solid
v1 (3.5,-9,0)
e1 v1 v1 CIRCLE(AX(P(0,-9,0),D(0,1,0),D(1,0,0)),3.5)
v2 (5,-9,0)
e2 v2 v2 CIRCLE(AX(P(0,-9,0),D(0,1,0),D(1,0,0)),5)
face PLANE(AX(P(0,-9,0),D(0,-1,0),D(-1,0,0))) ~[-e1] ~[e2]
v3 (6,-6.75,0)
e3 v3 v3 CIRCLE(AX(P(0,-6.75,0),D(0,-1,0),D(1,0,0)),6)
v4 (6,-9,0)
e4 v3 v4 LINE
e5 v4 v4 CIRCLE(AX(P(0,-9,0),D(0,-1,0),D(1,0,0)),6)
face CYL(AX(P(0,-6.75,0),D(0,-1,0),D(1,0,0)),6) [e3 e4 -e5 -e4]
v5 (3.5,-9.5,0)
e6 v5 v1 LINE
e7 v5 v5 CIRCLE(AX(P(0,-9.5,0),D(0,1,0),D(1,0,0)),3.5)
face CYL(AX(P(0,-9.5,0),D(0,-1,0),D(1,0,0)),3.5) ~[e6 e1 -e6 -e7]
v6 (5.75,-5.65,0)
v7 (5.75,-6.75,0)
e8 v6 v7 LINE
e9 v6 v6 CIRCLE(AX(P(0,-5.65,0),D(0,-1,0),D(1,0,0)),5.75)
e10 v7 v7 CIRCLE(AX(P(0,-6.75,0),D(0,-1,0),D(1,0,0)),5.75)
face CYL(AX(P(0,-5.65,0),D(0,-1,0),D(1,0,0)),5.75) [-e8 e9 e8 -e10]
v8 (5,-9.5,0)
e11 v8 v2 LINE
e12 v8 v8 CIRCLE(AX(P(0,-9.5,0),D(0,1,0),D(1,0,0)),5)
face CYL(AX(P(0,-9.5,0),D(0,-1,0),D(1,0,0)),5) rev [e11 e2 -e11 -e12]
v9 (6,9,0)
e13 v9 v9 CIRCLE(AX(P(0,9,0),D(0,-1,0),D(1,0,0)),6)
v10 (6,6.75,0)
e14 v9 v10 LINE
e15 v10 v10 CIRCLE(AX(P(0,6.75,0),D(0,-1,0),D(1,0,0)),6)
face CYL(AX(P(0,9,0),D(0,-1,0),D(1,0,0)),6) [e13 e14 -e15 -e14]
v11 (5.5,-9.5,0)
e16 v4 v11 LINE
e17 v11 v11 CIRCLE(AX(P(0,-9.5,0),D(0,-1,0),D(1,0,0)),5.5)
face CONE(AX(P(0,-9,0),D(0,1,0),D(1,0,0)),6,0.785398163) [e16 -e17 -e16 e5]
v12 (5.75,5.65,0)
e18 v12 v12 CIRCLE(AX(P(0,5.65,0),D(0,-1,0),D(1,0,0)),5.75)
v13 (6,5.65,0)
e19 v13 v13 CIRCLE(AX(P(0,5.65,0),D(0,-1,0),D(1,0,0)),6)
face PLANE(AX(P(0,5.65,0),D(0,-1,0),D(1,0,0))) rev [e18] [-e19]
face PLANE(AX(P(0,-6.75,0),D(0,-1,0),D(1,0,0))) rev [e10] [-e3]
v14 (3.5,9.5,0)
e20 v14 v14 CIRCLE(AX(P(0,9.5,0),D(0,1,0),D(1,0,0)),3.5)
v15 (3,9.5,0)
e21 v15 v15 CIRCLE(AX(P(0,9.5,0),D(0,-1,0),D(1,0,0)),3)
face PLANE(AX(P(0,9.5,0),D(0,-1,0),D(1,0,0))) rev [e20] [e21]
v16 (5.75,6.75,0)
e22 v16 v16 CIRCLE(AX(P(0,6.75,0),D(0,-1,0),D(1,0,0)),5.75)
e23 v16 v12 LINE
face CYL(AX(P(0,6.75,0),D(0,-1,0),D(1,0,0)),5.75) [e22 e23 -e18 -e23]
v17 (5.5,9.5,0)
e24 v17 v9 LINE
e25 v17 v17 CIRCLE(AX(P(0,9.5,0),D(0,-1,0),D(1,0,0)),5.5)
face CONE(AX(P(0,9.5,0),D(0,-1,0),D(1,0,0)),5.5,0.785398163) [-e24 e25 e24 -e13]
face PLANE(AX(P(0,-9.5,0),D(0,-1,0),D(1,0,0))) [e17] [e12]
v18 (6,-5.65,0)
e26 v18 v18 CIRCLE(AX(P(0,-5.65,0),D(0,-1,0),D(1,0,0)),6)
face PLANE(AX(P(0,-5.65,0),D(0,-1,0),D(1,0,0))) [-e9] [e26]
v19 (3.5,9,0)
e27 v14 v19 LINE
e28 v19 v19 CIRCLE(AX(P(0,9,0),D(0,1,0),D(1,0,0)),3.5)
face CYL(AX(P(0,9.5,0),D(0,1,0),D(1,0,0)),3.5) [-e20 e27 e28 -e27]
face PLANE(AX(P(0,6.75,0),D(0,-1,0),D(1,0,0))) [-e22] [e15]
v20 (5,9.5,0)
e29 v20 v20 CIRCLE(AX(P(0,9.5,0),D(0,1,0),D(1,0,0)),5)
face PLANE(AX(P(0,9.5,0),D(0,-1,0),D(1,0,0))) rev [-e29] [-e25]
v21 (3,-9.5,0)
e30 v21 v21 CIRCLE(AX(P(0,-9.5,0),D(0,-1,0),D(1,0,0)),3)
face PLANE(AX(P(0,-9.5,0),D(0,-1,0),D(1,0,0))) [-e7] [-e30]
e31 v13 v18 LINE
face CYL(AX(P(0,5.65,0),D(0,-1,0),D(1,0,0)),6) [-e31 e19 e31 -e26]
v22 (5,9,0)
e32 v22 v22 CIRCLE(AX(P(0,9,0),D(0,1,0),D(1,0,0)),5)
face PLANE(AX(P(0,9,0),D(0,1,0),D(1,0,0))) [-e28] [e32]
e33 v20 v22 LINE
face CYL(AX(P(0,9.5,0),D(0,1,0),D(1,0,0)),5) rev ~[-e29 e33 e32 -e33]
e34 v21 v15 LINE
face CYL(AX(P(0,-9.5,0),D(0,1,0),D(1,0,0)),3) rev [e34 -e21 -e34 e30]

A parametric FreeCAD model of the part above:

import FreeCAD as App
import Part
import Sketcher

V = App.Vector
Q = App.Units.Quantity


def add_polygon(sketch, points):
    """Adds a closed chain of lines whose ends are joined by coincident constraints."""
    first, n = sketch.GeometryCount, len(points)
    for a, b in zip(points, points[1:] + points[:1]):
        sketch.addGeometry(Part.LineSegment(App.Vector(*a, 0), App.Vector(*b, 0)), False)
    for i in range(n):
        sketch.addConstraint(Sketcher.Constraint("Coincident", first + i, 2, first + (i + 1) % n, 1))

doc = App.newDocument("Part")
params = doc.addObject("Spreadsheet::Sheet", "Params")
for row, (alias, value) in enumerate([
    ("sketch1_height", "19 mm"),
    ("sketch1_width", "2.5 mm"),
    ("sketch1_height2", "1.1 mm"),
    ("sketch1_height3", "11.3 mm"),
    ("sketch1_width2", "0.25 mm"),
    ("revolution_angle", "360 deg"),
    ("sketch2_diameter", "10 mm"),
    ("sketch2_diameter2", "7 mm"),
    ("pocket1_length", "0.5 mm"),
], start=1):
    params.set(f"A{row}", alias)
    params.set(f"B{row}", "=" + value)
    params.setAlias(f"B{row}", alias)

body = doc.addObject("PartDesign::Body", "Body")

# Sketch on XY plane
sketch1 = body.newObject("Sketcher::SketchObject", "Sketch")
sketch1.AttachmentSupport = (doc.getObject("XY_Plane"), [""])
sketch1.MapMode = "FlatFace"
add_polygon(sketch1, [(3, 9.5), (3, -9.5), (5.5, -9.5), (6, -9), (6, -6.75), (5.75, -6.75), (5.75, -5.65), (6, -5.65), (6, 5.65), (5.75, 5.65), (5.75, 6.75), (6, 6.75), (6, 9), (5.5, 9.5)])  # lines 0-13
sketch1.addConstraint([
    Sketcher.Constraint("Vertical", 0),
    Sketcher.Constraint("Horizontal", 1),
    Sketcher.Constraint("Vertical", 3),
    Sketcher.Constraint("Horizontal", 4),
    Sketcher.Constraint("Vertical", 5),
    Sketcher.Constraint("Horizontal", 6),
    Sketcher.Constraint("Vertical", 7),
    Sketcher.Constraint("Horizontal", 8),
    Sketcher.Constraint("Vertical", 9),
    Sketcher.Constraint("Horizontal", 10),
    Sketcher.Constraint("Vertical", 11),
    Sketcher.Constraint("Horizontal", 13),
    Sketcher.Constraint("Symmetric", 5, 2, 8, 2, -1),
    Sketcher.Constraint("Symmetric", 3, 2, 10, 2, -1),
    Sketcher.Constraint("Symmetric", 1, 2, 12, 2, -1),
    Sketcher.Constraint("Perpendicular", 2, 12),
    Sketcher.Constraint("Vertical", 3, 2, 6, 2),
    Sketcher.Constraint("Equal", 3, 11),
    Sketcher.Constraint("DistanceY", 0, 2, 0, 1, Q("19 mm")),
    Sketcher.Constraint("DistanceX", 1, 1, 1, 2, Q("2.5 mm")),
    Sketcher.Constraint("DistanceY", 5, 1, 5, 2, Q("1.1 mm")),
    Sketcher.Constraint("DistanceY", 7, 1, 7, 2, Q("11.3 mm")),
    Sketcher.Constraint("DistanceX", -1, 1, 0, 2, Q("3 mm")),
    Sketcher.Constraint("DistanceX", -1, 1, 2, 2, Q("6 mm")),
    Sketcher.Constraint("DistanceX", 4, 2, 4, 1, Q("0.25 mm")),
])
sketch1.setExpression("Constraints[32]", "Params.sketch1_height")
sketch1.setExpression("Constraints[33]", "Params.sketch1_width")
sketch1.setExpression("Constraints[34]", "Params.sketch1_height2")
sketch1.setExpression("Constraints[35]", "Params.sketch1_height3")
sketch1.setExpression("Constraints[38]", "Params.sketch1_width2")
revolution = body.newObject("PartDesign::Revolution", "Revolution")
revolution.Profile = sketch1
revolution.ReferenceAxis = (sketch1, ["V_Axis"])
revolution.setExpression("Angle", "Params.revolution_angle")

# Sketch on XZ plane
sketch2 = body.newObject("Sketcher::SketchObject", "Sketch001")
sketch2.AttachmentSupport = (doc.getObject("XZ_Plane"), [""])
sketch2.MapMode = "FlatFace"
sketch2.AttachmentOffset = App.Placement(V(0, 0, -9.5), App.Rotation())
sketch2.addGeometry([
    Part.Circle(V(0, 0, 0), V(0, 0, 1), 5),
    Part.Circle(V(0, 0, 0), V(0, 0, 1), 3.5),
], False)
sketch2.addConstraint([
    Sketcher.Constraint("Coincident", 0, 3, -1, 1),
    Sketcher.Constraint("Coincident", 1, 3, -1, 1),
    Sketcher.Constraint("Diameter", 0, Q("10 mm")),
    Sketcher.Constraint("Diameter", 1, Q("7 mm")),
])
sketch2.setExpression("Constraints[2]", "Params.sketch2_diameter")
sketch2.setExpression("Constraints[3]", "Params.sketch2_diameter2")
pocket1 = body.newObject("PartDesign::Pocket", "Pocket")
pocket1.Profile = sketch2
pocket1.setExpression("Length", "Params.pocket1_length")
pocket1.Reversed = True
doc.recompute()

mirrored = body.newObject("PartDesign::Mirrored", "Mirrored")
mirrored.Originals = [pocket1]
mirrored.MirrorPlane = (doc.getObject("XZ_Plane"), [""])
body.Tip = mirrored

doc.recompute()
